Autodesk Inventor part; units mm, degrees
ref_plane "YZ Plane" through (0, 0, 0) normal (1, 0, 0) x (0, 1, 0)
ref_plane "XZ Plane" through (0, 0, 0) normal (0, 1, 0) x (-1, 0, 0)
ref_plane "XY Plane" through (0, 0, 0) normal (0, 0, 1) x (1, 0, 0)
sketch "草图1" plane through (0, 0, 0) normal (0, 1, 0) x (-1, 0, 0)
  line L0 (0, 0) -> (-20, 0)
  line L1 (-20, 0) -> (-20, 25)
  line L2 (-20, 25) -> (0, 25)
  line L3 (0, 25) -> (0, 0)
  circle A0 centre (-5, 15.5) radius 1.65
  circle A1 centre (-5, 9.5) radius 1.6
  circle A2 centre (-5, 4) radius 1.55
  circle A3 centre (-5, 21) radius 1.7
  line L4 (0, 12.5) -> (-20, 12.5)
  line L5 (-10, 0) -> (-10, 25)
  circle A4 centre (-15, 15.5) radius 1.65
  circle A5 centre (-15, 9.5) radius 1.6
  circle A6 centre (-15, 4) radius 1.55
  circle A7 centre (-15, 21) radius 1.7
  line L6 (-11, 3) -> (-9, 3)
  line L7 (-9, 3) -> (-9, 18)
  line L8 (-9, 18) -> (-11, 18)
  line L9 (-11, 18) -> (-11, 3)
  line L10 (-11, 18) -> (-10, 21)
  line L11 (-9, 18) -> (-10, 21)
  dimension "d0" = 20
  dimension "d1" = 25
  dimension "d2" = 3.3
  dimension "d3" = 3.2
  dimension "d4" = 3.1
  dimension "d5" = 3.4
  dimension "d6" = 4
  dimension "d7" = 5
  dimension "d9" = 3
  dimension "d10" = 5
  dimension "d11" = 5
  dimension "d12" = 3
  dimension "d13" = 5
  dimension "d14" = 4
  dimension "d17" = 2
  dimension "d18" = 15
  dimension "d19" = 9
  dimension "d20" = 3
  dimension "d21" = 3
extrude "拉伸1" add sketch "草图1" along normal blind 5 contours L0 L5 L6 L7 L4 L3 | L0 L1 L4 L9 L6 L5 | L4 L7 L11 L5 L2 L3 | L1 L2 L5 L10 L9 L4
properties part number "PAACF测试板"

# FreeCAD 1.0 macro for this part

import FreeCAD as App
import Part
import Sketcher

V = App.Vector


def add_polygon(sketch, points):
    """Adds a closed chain of lines whose ends are joined by coincident constraints."""
    first, n = sketch.GeometryCount, len(points)
    for a, b in zip(points, points[1:] + points[:1]):
        sketch.addGeometry(Part.LineSegment(App.Vector(*a, 0), App.Vector(*b, 0)), False)
    for i in range(n):
        sketch.addConstraint(Sketcher.Constraint("Coincident", first + i, 2, first + (i + 1) % n, 1))

doc = App.newDocument("Part")
body = doc.addObject("PartDesign::Body", "Body")

sketch1 = doc.addObject("Sketcher::SketchObject", "Sketch")
body.addObject(sketch1)
sketch1.AttachmentSupport = (doc.XZ_Plane, [""])
sketch1.MapMode = "FlatFace"
add_polygon(sketch1, [(0, 0), (0, 25), (20, 25), (20, 0)])
add_polygon(sketch1, [(9, 3), (11, 3), (11, 18), (10, 21), (9, 18)])
sketch1.addGeometry(Part.Circle(V(5, 4, 0), V(0, 0, 1), 1.6), False)
sketch1.addGeometry(Part.Circle(V(5, 9.5, 0), V(0, 0, 1), 1.6), False)
sketch1.addGeometry(Part.Circle(V(15, 9.5, 0), V(0, 0, 1), 1.6), False)
sketch1.addGeometry(Part.Circle(V(15, 4, 0), V(0, 0, 1), 1.6), False)
sketch1.addGeometry(Part.Circle(V(5, 21, 0), V(0, 0, 1), 1.7), False)
sketch1.addGeometry(Part.Circle(V(5, 15.5, 0), V(0, 0, 1), 1.6), False)
sketch1.addGeometry(Part.Circle(V(15, 15.5, 0), V(0, 0, 1), 1.6), False)
sketch1.addGeometry(Part.Circle(V(15, 21, 0), V(0, 0, 1), 1.7), False)
sketch1.addConstraint([
    Sketcher.Constraint("Vertical", 0),
    Sketcher.Constraint("Horizontal", 1),
    Sketcher.Constraint("Vertical", 2),
    Sketcher.Constraint("Horizontal", 3),
    Sketcher.Constraint("Horizontal", 4),
    Sketcher.Constraint("Vertical", 5),
    Sketcher.Constraint("Vertical", 8),
    Sketcher.Constraint("Coincident", 3, 2, -1, 1),
    Sketcher.Constraint("Equal", 10, 11),
    Sketcher.Constraint("Equal", 9, 12),
    Sketcher.Constraint("Equal", 14, 15),
    Sketcher.Constraint("Equal", 13, 16),
    Sketcher.Constraint("Horizontal", 10, 3, 11, 3),
    Sketcher.Constraint("Horizontal", 9, 3, 12, 3),
    Sketcher.Constraint("Horizontal", 14, 3, 15, 3),
    Sketcher.Constraint("Horizontal", 13, 3, 16, 3),
    Sketcher.Constraint("Horizontal", 16, 3, 6, 2),
    Sketcher.Constraint("Horizontal", 5, 2, 7, 2),
    Sketcher.Constraint("Vertical", 9, 3, 10, 3),
    Sketcher.Constraint("Vertical", 11, 3, 12, 3),
    Sketcher.Constraint("Vertical", 10, 3, 13, 3),
    Sketcher.Constraint("Vertical", 13, 3, 14, 3),
    Sketcher.Constraint("Vertical", 12, 3, 15, 3),
    Sketcher.Constraint("Vertical", 15, 3, 16, 3),
    Sketcher.Constraint("Equal", 6, 7),
    Sketcher.Constraint("Diameter", 9, 3.1),
    Sketcher.Constraint("Diameter", 10, 3.2),
    Sketcher.Constraint("Diameter", 13, 3.4),
    Sketcher.Constraint("Diameter", 14, 3.3),
    Sketcher.Constraint("DistanceX", 1, 1, 1, 2, 20.0),
    Sketcher.Constraint("DistanceX", 4, 1, 4, 2, 2.0),
    Sketcher.Constraint("DistanceY", 0, 1, 0, 2, 25.0),
    Sketcher.Constraint("DistanceY", 5, 1, 5, 2, 15.0),
    Sketcher.Constraint("DistanceX", -1, 1, 9, 3, 5.0),
    Sketcher.Constraint("DistanceY", -1, 1, 9, 3, 4.0),
    Sketcher.Constraint("DistanceX", -1, 1, 11, 3, 15.0),
    Sketcher.Constraint("DistanceY", -1, 1, 4, 2, 3.0),
    Sketcher.Constraint("DistanceX", -1, 1, 7, 2, 9.0),
    Sketcher.Constraint("DistanceY", 13, 3, 0, 2, 4.0),
    Sketcher.Constraint("DistanceY", 10, 3, 14, 3, 6.0),
    Sketcher.Constraint("DistanceY", -1, 1, 10, 3, 9.5),
])
pad1 = doc.addObject("PartDesign::Pad", "Pad")
body.addObject(pad1)
pad1.Profile = sketch1
pad1.Length = 5
pad1.Reversed = True

doc.recompute()
